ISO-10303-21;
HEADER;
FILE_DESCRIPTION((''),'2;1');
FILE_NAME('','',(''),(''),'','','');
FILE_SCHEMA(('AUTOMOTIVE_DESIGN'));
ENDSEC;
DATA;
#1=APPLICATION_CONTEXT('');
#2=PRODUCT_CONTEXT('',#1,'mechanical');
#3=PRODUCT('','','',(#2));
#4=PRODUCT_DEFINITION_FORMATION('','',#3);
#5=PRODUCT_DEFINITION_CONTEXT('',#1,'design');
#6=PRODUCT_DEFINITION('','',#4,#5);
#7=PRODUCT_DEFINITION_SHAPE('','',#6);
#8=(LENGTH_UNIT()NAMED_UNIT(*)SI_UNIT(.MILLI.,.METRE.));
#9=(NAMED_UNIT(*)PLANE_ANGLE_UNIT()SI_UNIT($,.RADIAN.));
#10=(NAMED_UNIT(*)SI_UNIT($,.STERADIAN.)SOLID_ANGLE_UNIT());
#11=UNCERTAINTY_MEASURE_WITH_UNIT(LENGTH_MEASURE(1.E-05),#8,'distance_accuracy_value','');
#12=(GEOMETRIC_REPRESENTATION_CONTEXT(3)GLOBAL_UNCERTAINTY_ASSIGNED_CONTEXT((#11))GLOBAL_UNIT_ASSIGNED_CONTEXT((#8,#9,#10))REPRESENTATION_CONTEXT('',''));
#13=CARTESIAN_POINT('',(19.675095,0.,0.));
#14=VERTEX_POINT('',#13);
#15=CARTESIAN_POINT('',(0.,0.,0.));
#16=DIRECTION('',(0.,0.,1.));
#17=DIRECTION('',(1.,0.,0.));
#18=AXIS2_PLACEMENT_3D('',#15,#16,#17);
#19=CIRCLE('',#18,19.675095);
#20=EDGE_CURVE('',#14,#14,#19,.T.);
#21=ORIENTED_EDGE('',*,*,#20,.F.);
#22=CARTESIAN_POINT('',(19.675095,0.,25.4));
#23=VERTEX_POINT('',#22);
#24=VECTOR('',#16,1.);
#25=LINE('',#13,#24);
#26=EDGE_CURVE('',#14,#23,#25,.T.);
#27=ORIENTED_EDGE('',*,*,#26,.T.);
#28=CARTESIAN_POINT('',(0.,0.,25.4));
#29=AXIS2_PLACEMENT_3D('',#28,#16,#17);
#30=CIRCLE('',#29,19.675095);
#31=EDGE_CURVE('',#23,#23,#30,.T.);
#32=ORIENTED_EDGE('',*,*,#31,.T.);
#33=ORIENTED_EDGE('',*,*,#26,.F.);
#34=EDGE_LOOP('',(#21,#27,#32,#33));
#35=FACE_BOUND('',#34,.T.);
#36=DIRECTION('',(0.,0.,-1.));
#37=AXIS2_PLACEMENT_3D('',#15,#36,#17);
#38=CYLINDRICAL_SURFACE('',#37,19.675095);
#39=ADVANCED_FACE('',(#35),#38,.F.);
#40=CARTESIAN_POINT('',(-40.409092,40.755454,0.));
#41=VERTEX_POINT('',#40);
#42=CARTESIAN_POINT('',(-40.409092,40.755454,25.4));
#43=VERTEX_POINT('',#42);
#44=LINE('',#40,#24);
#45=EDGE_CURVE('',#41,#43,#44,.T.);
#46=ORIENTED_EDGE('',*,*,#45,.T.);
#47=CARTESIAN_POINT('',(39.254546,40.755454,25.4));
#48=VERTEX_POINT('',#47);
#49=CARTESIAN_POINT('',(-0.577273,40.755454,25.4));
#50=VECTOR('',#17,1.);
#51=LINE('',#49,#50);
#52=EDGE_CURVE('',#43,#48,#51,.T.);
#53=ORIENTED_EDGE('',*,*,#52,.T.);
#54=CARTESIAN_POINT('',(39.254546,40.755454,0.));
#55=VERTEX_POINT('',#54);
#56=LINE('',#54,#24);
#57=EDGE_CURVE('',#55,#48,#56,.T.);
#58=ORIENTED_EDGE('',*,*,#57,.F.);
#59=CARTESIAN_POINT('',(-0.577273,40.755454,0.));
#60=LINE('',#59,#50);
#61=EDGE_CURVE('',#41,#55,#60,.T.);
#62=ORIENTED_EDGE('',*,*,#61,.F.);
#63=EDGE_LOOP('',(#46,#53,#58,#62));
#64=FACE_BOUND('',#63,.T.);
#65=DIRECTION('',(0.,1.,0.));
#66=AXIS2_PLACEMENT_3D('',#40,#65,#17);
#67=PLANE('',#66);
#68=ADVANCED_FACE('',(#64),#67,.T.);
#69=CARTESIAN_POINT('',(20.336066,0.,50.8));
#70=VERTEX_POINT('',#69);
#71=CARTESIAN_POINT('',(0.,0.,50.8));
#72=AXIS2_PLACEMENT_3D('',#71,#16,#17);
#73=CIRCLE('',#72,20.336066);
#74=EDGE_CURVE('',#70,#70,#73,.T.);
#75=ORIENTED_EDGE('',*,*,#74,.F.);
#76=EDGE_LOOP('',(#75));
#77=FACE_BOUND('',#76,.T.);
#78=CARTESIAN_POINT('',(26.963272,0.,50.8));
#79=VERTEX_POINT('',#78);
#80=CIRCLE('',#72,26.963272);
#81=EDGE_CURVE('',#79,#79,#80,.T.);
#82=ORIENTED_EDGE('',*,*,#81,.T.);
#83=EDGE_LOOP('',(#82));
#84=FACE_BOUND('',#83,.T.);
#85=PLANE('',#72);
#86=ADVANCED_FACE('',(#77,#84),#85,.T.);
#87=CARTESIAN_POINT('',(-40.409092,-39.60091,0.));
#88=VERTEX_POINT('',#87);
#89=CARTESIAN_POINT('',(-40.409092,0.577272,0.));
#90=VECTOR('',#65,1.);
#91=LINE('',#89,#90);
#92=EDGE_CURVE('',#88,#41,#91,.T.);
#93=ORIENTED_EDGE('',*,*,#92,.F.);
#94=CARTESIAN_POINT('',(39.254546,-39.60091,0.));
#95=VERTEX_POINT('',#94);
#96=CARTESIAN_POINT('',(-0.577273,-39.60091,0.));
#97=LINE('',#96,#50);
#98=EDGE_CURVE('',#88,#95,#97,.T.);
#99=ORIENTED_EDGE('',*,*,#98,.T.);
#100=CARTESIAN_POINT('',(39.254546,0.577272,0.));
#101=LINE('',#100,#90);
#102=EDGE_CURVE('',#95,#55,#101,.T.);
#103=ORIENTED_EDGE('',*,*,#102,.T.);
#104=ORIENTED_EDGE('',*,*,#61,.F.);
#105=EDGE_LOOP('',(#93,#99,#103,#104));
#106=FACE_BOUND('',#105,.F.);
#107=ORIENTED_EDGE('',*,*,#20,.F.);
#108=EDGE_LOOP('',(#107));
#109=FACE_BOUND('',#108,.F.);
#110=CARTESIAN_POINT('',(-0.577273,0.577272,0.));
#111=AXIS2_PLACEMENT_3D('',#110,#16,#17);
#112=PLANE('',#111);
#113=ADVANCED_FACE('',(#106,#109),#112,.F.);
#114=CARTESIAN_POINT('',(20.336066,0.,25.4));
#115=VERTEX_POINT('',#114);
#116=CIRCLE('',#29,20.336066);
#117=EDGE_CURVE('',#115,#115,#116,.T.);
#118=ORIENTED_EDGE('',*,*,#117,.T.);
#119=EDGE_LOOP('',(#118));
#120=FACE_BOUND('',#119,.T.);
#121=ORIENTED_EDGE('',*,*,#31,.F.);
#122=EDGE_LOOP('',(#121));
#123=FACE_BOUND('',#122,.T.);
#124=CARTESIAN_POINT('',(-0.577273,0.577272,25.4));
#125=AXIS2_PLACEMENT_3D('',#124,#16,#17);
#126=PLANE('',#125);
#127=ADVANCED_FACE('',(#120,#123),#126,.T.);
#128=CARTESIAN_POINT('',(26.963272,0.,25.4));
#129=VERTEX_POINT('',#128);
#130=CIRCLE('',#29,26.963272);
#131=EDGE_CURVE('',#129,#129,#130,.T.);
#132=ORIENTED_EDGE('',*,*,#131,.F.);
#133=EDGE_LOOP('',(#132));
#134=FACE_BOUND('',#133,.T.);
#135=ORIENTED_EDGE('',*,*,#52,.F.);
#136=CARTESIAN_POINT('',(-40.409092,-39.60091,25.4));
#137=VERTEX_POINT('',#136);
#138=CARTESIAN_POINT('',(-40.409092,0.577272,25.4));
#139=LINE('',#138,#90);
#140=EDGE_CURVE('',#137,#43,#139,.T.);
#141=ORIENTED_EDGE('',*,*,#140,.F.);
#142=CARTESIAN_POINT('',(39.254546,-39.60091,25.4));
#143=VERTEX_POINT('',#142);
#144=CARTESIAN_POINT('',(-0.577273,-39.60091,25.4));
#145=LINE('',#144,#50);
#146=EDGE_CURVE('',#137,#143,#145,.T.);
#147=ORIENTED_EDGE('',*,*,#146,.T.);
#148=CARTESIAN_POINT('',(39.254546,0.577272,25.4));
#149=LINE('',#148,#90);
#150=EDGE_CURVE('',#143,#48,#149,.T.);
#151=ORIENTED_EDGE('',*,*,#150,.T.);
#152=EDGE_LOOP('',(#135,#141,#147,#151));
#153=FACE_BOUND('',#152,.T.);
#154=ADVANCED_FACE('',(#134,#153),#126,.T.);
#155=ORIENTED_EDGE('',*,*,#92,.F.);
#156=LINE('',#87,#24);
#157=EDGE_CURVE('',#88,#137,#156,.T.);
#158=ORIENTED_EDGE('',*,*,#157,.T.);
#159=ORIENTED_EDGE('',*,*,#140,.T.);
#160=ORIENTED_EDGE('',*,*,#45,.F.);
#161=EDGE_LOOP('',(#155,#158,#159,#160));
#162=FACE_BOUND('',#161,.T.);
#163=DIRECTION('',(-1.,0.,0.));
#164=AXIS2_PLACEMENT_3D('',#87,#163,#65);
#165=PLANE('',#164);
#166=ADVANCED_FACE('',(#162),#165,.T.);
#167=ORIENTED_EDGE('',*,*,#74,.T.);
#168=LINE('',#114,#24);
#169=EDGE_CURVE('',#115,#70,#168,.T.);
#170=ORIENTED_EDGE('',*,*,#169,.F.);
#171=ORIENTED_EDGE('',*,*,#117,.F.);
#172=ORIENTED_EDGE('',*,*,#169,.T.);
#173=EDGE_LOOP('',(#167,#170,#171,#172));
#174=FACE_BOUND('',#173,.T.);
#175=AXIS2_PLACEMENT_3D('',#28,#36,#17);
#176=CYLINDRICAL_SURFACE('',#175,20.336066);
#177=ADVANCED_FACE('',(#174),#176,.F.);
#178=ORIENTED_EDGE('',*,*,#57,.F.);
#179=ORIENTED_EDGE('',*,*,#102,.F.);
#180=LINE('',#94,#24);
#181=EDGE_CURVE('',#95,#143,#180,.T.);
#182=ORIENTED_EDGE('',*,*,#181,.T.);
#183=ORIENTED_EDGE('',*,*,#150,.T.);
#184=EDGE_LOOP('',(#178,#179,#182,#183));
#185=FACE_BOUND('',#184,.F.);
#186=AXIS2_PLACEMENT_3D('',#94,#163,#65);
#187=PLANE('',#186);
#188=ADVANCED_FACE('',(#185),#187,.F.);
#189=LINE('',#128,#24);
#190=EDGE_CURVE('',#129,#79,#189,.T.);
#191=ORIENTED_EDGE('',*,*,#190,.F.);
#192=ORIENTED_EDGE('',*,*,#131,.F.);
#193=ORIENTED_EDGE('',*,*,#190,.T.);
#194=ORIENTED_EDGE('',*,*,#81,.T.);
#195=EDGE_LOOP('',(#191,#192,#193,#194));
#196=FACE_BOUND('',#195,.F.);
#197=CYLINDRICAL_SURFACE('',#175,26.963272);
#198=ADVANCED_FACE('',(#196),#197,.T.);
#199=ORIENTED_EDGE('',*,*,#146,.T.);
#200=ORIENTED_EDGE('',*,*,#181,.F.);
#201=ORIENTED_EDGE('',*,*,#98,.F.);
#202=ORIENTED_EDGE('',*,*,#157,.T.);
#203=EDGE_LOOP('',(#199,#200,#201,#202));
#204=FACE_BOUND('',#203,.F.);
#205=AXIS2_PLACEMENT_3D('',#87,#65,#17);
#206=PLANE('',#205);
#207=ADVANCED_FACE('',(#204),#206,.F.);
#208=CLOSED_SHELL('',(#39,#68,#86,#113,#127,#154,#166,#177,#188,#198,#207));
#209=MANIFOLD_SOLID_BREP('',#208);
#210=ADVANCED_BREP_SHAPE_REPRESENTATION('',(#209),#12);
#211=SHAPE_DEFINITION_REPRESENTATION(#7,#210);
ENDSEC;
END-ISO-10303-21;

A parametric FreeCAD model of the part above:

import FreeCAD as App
import Part
import Sketcher
Q = App.Units.Quantity


def add_polygon(sketch, points):
    """Adds a closed chain of lines whose ends are joined by coincident constraints."""
    first, n = sketch.GeometryCount, len(points)
    for a, b in zip(points, points[1:] + points[:1]):
        sketch.addGeometry(Part.LineSegment(App.Vector(*a, 0), App.Vector(*b, 0)), False)
    for i in range(n):
        sketch.addConstraint(Sketcher.Constraint("Coincident", first + i, 2, first + (i + 1) % n, 1))

doc = App.newDocument("Part")
body = doc.addObject("PartDesign::Body", "Body")

# Sketch on XY plane
sketch1 = body.newObject("Sketcher::SketchObject", "Sketch")
sketch1.AttachmentSupport = (doc.getObject("XY_Plane"), [""])
sketch1.MapMode = "FlatFace"
add_polygon(sketch1, [(-40, 41), (-40, -40), (39, -40), (39, 41)])  # lines 0-3
sketch1.addGeometry(Part.Circle(App.Vector(0, 0, 0), App.Vector(0, 0, 1), 20), False)  # 4
sketch1.addConstraint([
    Sketcher.Constraint("Vertical", 0),
    Sketcher.Constraint("Horizontal", 1),
    Sketcher.Constraint("Vertical", 2),
    Sketcher.Constraint("Horizontal", 3),
    Sketcher.Constraint("Coincident", 4, 3, -1, 1),
    Sketcher.Constraint("Diameter", 4, Q("39.35019 mm")),
    Sketcher.Constraint("DistanceX", 1, 1, 1, 2, Q("79.663638 mm")),
    Sketcher.Constraint("DistanceY", 0, 2, 0, 1, Q("80.356363 mm")),
    Sketcher.Constraint("DistanceY", 0, 2, -1, 1, Q("39.60091 mm")),
    Sketcher.Constraint("DistanceX", 0, 2, -1, 1, Q("40.409092 mm")),
])
pad1 = body.newObject("PartDesign::Pad", "Pad")
pad1.Profile = sketch1
pad1.Length = Q("1 in")

# Sketch on XY plane
sketch2 = body.newObject("Sketcher::SketchObject", "Sketch001")
sketch2.AttachmentSupport = (doc.getObject("XY_Plane"), [""])
sketch2.MapMode = "FlatFace"
sketch2.AttachmentOffset = App.Placement(App.Vector(0, 0, 1 * 25.4), App.Rotation())
sketch2.addGeometry([
    Part.Circle(App.Vector(0, 0, 0), App.Vector(0, 0, 1), 27),
    Part.Circle(App.Vector(0, 0, 0), App.Vector(0, 0, 1), 20),
], False)
sketch2.addConstraint([
    Sketcher.Constraint("Coincident", 0, 3, -1, 1),
    Sketcher.Constraint("Coincident", 1, 3, -1, 1),
    Sketcher.Constraint("Diameter", 1, Q("40.672132 mm")),
    Sketcher.Constraint("Diameter", 0, Q("53.926544 mm")),
])
pad2 = body.newObject("PartDesign::Pad", "Pad001")
pad2.Profile = sketch2
pad2.Length = Q("1 in")

doc.recompute()
